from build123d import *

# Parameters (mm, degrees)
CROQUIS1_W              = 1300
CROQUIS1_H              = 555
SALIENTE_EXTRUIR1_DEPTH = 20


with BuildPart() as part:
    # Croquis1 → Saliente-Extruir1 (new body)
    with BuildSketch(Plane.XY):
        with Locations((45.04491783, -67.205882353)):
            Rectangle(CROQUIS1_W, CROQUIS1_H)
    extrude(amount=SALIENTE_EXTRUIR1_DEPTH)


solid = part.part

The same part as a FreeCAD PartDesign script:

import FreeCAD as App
import Part
import Sketcher
from FreeCAD import Vector
Q = App.Units.Quantity


def add_polygon(sketch, points):
    """Adds a closed chain of lines whose ends are joined by coincident constraints."""
    first, n = sketch.GeometryCount, len(points)
    for a, b in zip(points, points[1:] + points[:1]):
        sketch.addGeometry(Part.LineSegment(App.Vector(*a, 0), App.Vector(*b, 0)), False)
    for i in range(n):
        sketch.addConstraint(Sketcher.Constraint("Coincident", first + i, 2, first + (i + 1) % n, 1))

doc = App.newDocument("Part")
body = doc.addObject("PartDesign::Body", "Body")

# Sketch on XY plane
sketch1 = doc.addObject("Sketcher::SketchObject", "Sketch")
body.addObject(sketch1)
sketch1.AttachmentSupport = (doc.XY_Plane, [""])
sketch1.MapMode = "FlatFace"
add_polygon(sketch1, [(-604.955082, 210.294118), (-604.955082, -344.705882), (695.044918, -344.705882), (695.044918, 210.294118)])  # lines 0-3
sketch1.addConstraint([
    Sketcher.Constraint("Vertical", 0),
    Sketcher.Constraint("Horizontal", 1),
    Sketcher.Constraint("Vertical", 2),
    Sketcher.Constraint("Horizontal", 3),
    Sketcher.Constraint("DistanceX", 1, 1, 1, 2, Q("1300 mm")),
    Sketcher.Constraint("DistanceY", 0, 2, 0, 1, Q("555 mm")),
    Sketcher.Constraint("DistanceX", 0, 2, -1, 1, Q("604.955082 mm")),
    Sketcher.Constraint("DistanceY", 0, 2, -1, 1, Q("344.705882 mm")),
])
pad1 = doc.addObject("PartDesign::Pad", "Pad")
body.addObject(pad1)
pad1.Profile = sketch1
pad1.Length = 20

doc.recompute()
